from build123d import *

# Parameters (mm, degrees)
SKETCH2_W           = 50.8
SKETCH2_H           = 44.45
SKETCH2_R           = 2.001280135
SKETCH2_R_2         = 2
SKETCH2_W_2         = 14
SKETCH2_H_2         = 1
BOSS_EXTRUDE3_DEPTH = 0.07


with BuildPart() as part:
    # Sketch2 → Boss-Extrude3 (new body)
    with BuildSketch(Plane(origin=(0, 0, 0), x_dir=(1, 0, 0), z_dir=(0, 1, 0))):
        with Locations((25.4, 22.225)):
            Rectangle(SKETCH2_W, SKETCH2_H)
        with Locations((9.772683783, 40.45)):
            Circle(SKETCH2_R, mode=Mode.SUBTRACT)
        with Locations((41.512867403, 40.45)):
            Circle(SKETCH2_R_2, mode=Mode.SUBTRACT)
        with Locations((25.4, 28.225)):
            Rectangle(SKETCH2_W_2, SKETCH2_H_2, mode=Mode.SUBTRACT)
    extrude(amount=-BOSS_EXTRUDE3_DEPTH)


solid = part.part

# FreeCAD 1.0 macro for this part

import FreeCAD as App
import Part
import Sketcher


def add_polygon(sketch, points):
    """Adds a closed chain of lines whose ends are joined by coincident constraints."""
    first, n = sketch.GeometryCount, len(points)
    for a, b in zip(points, points[1:] + points[:1]):
        sketch.addGeometry(Part.LineSegment(App.Vector(*a, 0), App.Vector(*b, 0)), False)
    for i in range(n):
        sketch.addConstraint(Sketcher.Constraint("Coincident", first + i, 2, first + (i + 1) % n, 1))

doc = App.newDocument("Part")
body = doc.addObject("PartDesign::Body", "Body")

# Sketch on XZ plane
sketch1 = body.newObject("Sketcher::SketchObject", "Sketch")
sketch1.AttachmentSupport = (doc.getObject("XZ_Plane"), [""])
sketch1.MapMode = "FlatFace"
add_polygon(sketch1, [(0, -44.5), (0, 0), (50.8, 0), (50.8, -44.5)])  # lines 0-3
add_polygon(sketch1, [(32.4, -27.7), (18.4, -27.7), (18.4, -28.7), (32.4, -28.7)])  # lines 4-7
sketch1.addGeometry(Part.Circle(App.Vector(9.8, -40.5, 0), App.Vector(0, 0, 1), 2), False)  # 8
sketch1.addGeometry(Part.Circle(App.Vector(41.5, -40.5, 0), App.Vector(0, 0, 1), 2), False)  # 9
sketch1.addConstraint(Sketcher.Constraint("Vertical", 0))
sketch1.addConstraint(Sketcher.Constraint("Horizontal", 1))
sketch1.addConstraint(Sketcher.Constraint("Vertical", 2))
sketch1.addConstraint(Sketcher.Constraint("Horizontal", 3))
sketch1.addConstraint(Sketcher.Constraint("Horizontal", 4))
sketch1.addConstraint(Sketcher.Constraint("Vertical", 5))
sketch1.addConstraint(Sketcher.Constraint("Horizontal", 6))
sketch1.addConstraint(Sketcher.Constraint("Vertical", 7))
sketch1.addConstraint(Sketcher.Constraint("Coincident", 0, 2, -1, 1))
sketch1.addConstraint(Sketcher.Constraint("Horizontal", 8, 3, 9, 3))
sketch1.addConstraint(Sketcher.Constraint("Diameter", 9, 4.0))
sketch1.addConstraint(Sketcher.Constraint("DistanceX", 4, 2, 4, 1, 14.0))
sketch1.addConstraint(Sketcher.Constraint("DistanceY", 5, 2, 5, 1, 1.0))
sketch1.addConstraint(Sketcher.Constraint("DistanceX", 1, 1, 1, 2, 50.8))
sketch1.addConstraint(Sketcher.Constraint("DistanceY", 2, 2, 9, 3, 4.0))
sketch1.addConstraint(Sketcher.Constraint("DistanceY", 0, 1, 0, 2, 44.45))
sketch1.addConstraint(Sketcher.Constraint("DistanceX", -1, 1, 4, 2, 18.4))
sketch1.addConstraint(Sketcher.Constraint("Diameter", 8, 4.00256))
sketch1.addConstraint(Sketcher.Constraint("DistanceY", 4, 2, -1, 1, 27.725))
sketch1.addConstraint(Sketcher.Constraint("DistanceX", -1, 1, 8, 3, 9.772684))
sketch1.addConstraint(Sketcher.Constraint("DistanceX", -1, 1, 9, 3, 41.512867))
pad1 = body.newObject("PartDesign::Pad", "Pad")
pad1.Profile = sketch1
pad1.Length = 0.07

doc.recompute()
